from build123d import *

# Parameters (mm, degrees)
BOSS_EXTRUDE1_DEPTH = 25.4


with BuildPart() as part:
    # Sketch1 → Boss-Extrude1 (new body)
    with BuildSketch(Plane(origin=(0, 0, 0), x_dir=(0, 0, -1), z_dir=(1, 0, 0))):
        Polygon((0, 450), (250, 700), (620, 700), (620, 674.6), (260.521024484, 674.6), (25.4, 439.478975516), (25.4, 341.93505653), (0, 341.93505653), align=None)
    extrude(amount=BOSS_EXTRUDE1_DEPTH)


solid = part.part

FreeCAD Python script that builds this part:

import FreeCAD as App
import Part
import Sketcher
Q = App.Units.Quantity

doc = App.newDocument("Part")
body = doc.addObject("PartDesign::Body", "Body")

# Sketch on YZ plane
sketch1 = body.newObject("Sketcher::SketchObject", "Sketch")
sketch1.AttachmentSupport = (doc.getObject("YZ_Plane"), [""])
sketch1.MapMode = "FlatFace"
sketch1.addGeometry([
    Part.LineSegment(App.Vector(700, -250, 0), App.Vector(450, 0, 0)),  # 0
    Part.LineSegment(App.Vector(450, 0, 0), App.Vector(342, 0, 0)),  # 1
    Part.LineSegment(App.Vector(342, 0, 0), App.Vector(342, -25, 0)),  # 2
    Part.LineSegment(App.Vector(342, -25, 0), App.Vector(439, -25, 0)),  # 3
    Part.LineSegment(App.Vector(439, -25, 0), App.Vector(675, -261, 0)),  # 4
    Part.LineSegment(App.Vector(675, -261, 0), App.Vector(675, -620, 0)),  # 5
    Part.LineSegment(App.Vector(675, -620, 0), App.Vector(700, -620, 0)),  # 6
    Part.LineSegment(App.Vector(700, -620, 0), App.Vector(700, -250, 0)),  # 7
], False)
sketch1.addConstraint([
    Sketcher.Constraint("Coincident", 0, 2, 1, 1),
    Sketcher.Constraint("Coincident", 1, 2, 2, 1),
    Sketcher.Constraint("Coincident", 2, 2, 3, 1),
    Sketcher.Constraint("Coincident", 3, 2, 4, 1),
    Sketcher.Constraint("Coincident", 4, 2, 5, 1),
    Sketcher.Constraint("Coincident", 5, 2, 6, 1),
    Sketcher.Constraint("Coincident", 6, 2, 7, 1),
    Sketcher.Constraint("Coincident", 7, 2, 0, 1),
    Sketcher.Constraint("Horizontal", 1),
    Sketcher.Constraint("Vertical", 2),
    Sketcher.Constraint("Horizontal", 3),
    Sketcher.Constraint("Vertical", 5),
    Sketcher.Constraint("Horizontal", 6),
    Sketcher.Constraint("Vertical", 7),
    Sketcher.Constraint("PointOnObject", 0, 2, -1),
    Sketcher.Constraint("Parallel", 0, 4),
    Sketcher.Constraint("Equal", 6, 2),
    Sketcher.Constraint("DistanceY", 7, 1, 7, 2, Q("370 mm")),
    Sketcher.Constraint("Angle", 0, Q("135 deg")),
    Sketcher.Constraint("DistanceX", 6, 1, 6, 2, Q("25.4 mm")),
    Sketcher.Constraint("DistanceX", -1, 1, 0, 2, Q("450 mm")),
    Sketcher.Constraint("DistanceY", 5, 2, -1, 1, Q("620 mm")),
    Sketcher.Constraint("DistanceX", 3, 1, 3, 2, Q("97.543919 mm")),
    Sketcher.Constraint("Distance", 4, Q("332.511342 mm")),
])
pad1 = body.newObject("PartDesign::Pad", "Pad")
pad1.Profile = sketch1
pad1.Length = 25.4

doc.recompute()
